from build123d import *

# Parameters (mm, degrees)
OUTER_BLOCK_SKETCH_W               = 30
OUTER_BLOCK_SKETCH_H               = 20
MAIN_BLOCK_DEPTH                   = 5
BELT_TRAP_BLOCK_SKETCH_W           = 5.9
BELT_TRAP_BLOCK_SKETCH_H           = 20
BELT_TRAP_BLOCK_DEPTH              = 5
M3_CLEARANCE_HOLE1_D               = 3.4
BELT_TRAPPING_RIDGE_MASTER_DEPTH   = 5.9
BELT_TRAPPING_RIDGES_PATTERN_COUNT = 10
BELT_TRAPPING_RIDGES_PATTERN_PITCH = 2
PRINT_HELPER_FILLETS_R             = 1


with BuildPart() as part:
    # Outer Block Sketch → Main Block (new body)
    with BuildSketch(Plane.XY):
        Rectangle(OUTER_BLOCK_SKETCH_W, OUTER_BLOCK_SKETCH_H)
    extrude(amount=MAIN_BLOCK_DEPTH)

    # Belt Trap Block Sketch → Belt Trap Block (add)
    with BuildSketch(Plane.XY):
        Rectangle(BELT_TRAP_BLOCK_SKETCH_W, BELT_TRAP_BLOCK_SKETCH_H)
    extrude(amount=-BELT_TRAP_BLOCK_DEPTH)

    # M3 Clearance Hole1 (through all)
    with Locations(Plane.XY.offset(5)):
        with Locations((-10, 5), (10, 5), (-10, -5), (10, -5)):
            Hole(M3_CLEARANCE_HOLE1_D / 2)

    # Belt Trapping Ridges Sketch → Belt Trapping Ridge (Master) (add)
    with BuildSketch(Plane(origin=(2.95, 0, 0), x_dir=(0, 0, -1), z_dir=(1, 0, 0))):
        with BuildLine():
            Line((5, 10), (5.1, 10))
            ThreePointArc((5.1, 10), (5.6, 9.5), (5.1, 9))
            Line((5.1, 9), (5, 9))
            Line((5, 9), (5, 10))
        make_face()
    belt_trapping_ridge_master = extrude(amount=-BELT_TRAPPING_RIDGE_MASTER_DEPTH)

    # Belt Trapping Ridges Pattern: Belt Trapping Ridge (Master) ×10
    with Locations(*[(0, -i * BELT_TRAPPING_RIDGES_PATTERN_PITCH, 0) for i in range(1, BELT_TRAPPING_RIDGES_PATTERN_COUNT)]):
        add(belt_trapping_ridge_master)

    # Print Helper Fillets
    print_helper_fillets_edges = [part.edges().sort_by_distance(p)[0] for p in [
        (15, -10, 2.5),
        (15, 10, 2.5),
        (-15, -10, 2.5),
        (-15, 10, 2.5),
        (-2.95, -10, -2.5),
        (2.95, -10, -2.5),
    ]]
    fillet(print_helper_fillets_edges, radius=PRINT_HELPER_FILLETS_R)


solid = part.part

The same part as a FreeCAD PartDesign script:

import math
import FreeCAD as App
import Part
import Sketcher
Q = App.Units.Quantity


def edges_at(feature, points):
    """Names of the edges that pass closest to the given points."""
    edges = feature.Shape.Edges
    near = lambda p: min(range(len(edges)), key=lambda i: edges[i].distToShape(Part.Vertex(*p))[0])
    return sorted({f"Edge{near(p) + 1}" for p in points})

doc = App.newDocument("Part")
body = doc.addObject("PartDesign::Body", "Body")

# Sketch on XY plane
sketch1 = body.newObject("Sketcher::SketchObject", "Sketch")
sketch1.AttachmentSupport = (doc.getObject("XY_Plane"), [""])
sketch1.MapMode = "FlatFace"
sketch1.addGeometry([
    Part.LineSegment(App.Vector(-15, 10, 0), App.Vector(-15, -10, 0)),
    Part.LineSegment(App.Vector(-15, -10, 0), App.Vector(15, -10, 0)),
    Part.LineSegment(App.Vector(15, -10, 0), App.Vector(15, 10, 0)),
    Part.LineSegment(App.Vector(15, 10, 0), App.Vector(-15, 10, 0)),
], False)
sketch1.addConstraint([
    Sketcher.Constraint("Coincident", 0, 2, 1, 1),
    Sketcher.Constraint("Coincident", 1, 2, 2, 1),
    Sketcher.Constraint("Coincident", 2, 2, 3, 1),
    Sketcher.Constraint("Coincident", 3, 2, 0, 1),
    Sketcher.Constraint("Vertical", 0),
    Sketcher.Constraint("Horizontal", 1),
    Sketcher.Constraint("Vertical", 2),
    Sketcher.Constraint("Horizontal", 3),
    Sketcher.Constraint("Symmetric", 0, 2, 2, 2, -1, 1),
    Sketcher.Constraint("DistanceX", 1, 1, 1, 2, Q("30 mm")),
    Sketcher.Constraint("DistanceY", 0, 2, 0, 1, Q("20 mm")),
])
pad1 = body.newObject("PartDesign::Pad", "Pad")
pad1.Profile = sketch1
pad1.Length = 5

# Sketch on XY plane
sketch2 = body.newObject("Sketcher::SketchObject", "Sketch001")
sketch2.AttachmentSupport = (doc.getObject("XY_Plane"), [""])
sketch2.MapMode = "FlatFace"
sketch2.addGeometry([
    Part.LineSegment(App.Vector(-3, 10, 0), App.Vector(-3, -10, 0)),
    Part.LineSegment(App.Vector(-3, -10, 0), App.Vector(3, -10, 0)),
    Part.LineSegment(App.Vector(3, -10, 0), App.Vector(3, 10, 0)),
    Part.LineSegment(App.Vector(3, 10, 0), App.Vector(-3, 10, 0)),
], False)
sketch2.addConstraint([
    Sketcher.Constraint("Coincident", 0, 2, 1, 1),
    Sketcher.Constraint("Coincident", 1, 2, 2, 1),
    Sketcher.Constraint("Coincident", 2, 2, 3, 1),
    Sketcher.Constraint("Coincident", 3, 2, 0, 1),
    Sketcher.Constraint("Vertical", 0),
    Sketcher.Constraint("Horizontal", 1),
    Sketcher.Constraint("Vertical", 2),
    Sketcher.Constraint("Horizontal", 3),
    Sketcher.Constraint("Symmetric", 0, 2, 2, 2, -1, 1),
    Sketcher.Constraint("DistanceY", 0, 2, 0, 1, Q("20 mm")),
    Sketcher.Constraint("DistanceX", 1, 1, 1, 2, Q("5.9 mm")),
])
pad2 = body.newObject("PartDesign::Pad", "Pad001")
pad2.Profile = sketch2
pad2.Length = 5
pad2.Reversed = True

# Sketch on XY plane
sketch3 = body.newObject("Sketcher::SketchObject", "Sketch002")
sketch3.AttachmentSupport = (doc.getObject("XY_Plane"), [""])
sketch3.MapMode = "FlatFace"
sketch3.AttachmentOffset = App.Placement(App.Vector(0, 0, 5), App.Rotation())
sketch3.addGeometry([
    Part.Circle(App.Vector(-10, 5, 0), App.Vector(0, 0, 1), 1.7),
    Part.Circle(App.Vector(10, 5, 0), App.Vector(0, 0, 1), 1.7),
    Part.Circle(App.Vector(-10, -5, 0), App.Vector(0, 0, 1), 1.7),
    Part.Circle(App.Vector(10, -5, 0), App.Vector(0, 0, 1), 1.7),
], False)
sketch3.addConstraint([
    Sketcher.Constraint("Equal", 0, 1),
    Sketcher.Constraint("Equal", 1, 2),
    Sketcher.Constraint("Equal", 2, 3),
    Sketcher.Constraint("Symmetric", 1, 3, 2, 3, -1, 1),
    Sketcher.Constraint("Symmetric", 0, 3, 3, 3, -1, 1),
    Sketcher.Constraint("Symmetric", 0, 3, 1, 3, -2),
    Sketcher.Constraint("Diameter", 0, Q("3.4 mm")),
    Sketcher.Constraint("DistanceX", 0, 3, -1, 1, Q("10 mm")),
    Sketcher.Constraint("DistanceY", -1, 1, 0, 3, Q("5 mm")),
])
doc.recompute()
hole = body.newObject("PartDesign::Hole", "Hole")
hole.Profile = sketch3
hole.ThreadType = "None"
hole.Diameter = 3.4
hole.DepthType = "ThroughAll"

# Sketch on YZ plane
sketch4 = body.newObject("Sketcher::SketchObject", "Sketch003")
sketch4.AttachmentSupport = (doc.getObject("YZ_Plane"), [""])
sketch4.MapMode = "FlatFace"
sketch4.AttachmentOffset = App.Placement(App.Vector(0, 0, 2.95), App.Rotation())
sketch4.addGeometry([
    Part.LineSegment(App.Vector(10, -5.1, 0), App.Vector(10, -5, 0)),
    Part.LineSegment(App.Vector(10, -5, 0), App.Vector(9, -5, 0)),
    Part.LineSegment(App.Vector(9, -5, 0), App.Vector(9, -5.1, 0)),
    Part.ArcOfCircle(Part.Circle(App.Vector(9.5, -5.1, 0), App.Vector(0, 0, 1), 0.5), math.radians(180), math.radians(360)),
], False)
sketch4.addConstraint([
    Sketcher.Constraint("Coincident", 0, 2, 1, 1),
    Sketcher.Constraint("Coincident", 1, 2, 2, 1),
    Sketcher.Constraint("Tangent", 2, 2, 3, 1),
    Sketcher.Constraint("Tangent", 3, 2, 0, 1),
    Sketcher.Constraint("Vertical", 0),
    Sketcher.Constraint("Horizontal", 1),
    Sketcher.Constraint("Vertical", 2),
    Sketcher.Constraint("Radius", 3, Q("0.5 mm")),
    Sketcher.Constraint("DistanceY", 0, 1, 0, 2, Q("0.1 mm")),
    Sketcher.Constraint("DistanceX", -1, 1, 0, 2, Q("10 mm")),
    Sketcher.Constraint("DistanceY", 0, 2, -1, 1, Q("5 mm")),
])
pad3 = body.newObject("PartDesign::Pad", "Pad002")
pad3.Profile = sketch4
pad3.Length = 5.9
pad3.Reversed = True
doc.recompute()

linearpattern = body.newObject("PartDesign::LinearPattern", "LinearPattern")
linearpattern.Originals = [pad3]
linearpattern.Direction = (doc.getObject("Y_Axis"), [""])
linearpattern.Mode = "offset"
linearpattern.Offset = 2
linearpattern.Occurrences = 10
linearpattern.Reversed = True
body.Tip = linearpattern
doc.recompute()

fillet = body.newObject("PartDesign::Fillet", "Fillet")
fillet.Base = (linearpattern, edges_at(linearpattern, [
    (15, -10, 2.5),
    (15, 10, 2.5),
    (-15, -10, 2.5),
    (-15, 10, 2.5),
    (-2.95, -10, -2.5),
    (2.95, -10, -2.5),
]))
fillet.Radius = 1

doc.recompute()
